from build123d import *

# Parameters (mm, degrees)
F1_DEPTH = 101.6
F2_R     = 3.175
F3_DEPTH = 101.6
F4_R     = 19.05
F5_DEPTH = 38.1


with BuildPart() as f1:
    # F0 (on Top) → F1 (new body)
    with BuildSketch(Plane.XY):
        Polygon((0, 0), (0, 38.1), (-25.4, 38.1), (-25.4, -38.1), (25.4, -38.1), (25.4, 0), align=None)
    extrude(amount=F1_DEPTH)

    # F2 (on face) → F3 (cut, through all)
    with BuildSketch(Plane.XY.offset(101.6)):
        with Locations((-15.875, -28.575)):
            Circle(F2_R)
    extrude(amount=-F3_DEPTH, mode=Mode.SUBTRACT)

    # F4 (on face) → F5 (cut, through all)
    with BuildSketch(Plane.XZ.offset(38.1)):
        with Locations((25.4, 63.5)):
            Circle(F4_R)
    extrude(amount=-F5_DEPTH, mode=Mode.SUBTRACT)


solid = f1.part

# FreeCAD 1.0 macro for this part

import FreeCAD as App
import Part
import Sketcher
Q = App.Units.Quantity


def add_polygon(sketch, points):
    """Adds a closed chain of lines whose ends are joined by coincident constraints."""
    first, n = sketch.GeometryCount, len(points)
    for a, b in zip(points, points[1:] + points[:1]):
        sketch.addGeometry(Part.LineSegment(App.Vector(*a, 0), App.Vector(*b, 0)), False)
    for i in range(n):
        sketch.addConstraint(Sketcher.Constraint("Coincident", first + i, 2, first + (i + 1) % n, 1))

doc = App.newDocument("Part")
body = doc.addObject("PartDesign::Body", "Body")

sketch1 = doc.addObject("Sketcher::SketchObject", "Sketch")
body.addObject(sketch1)
sketch1.AttachmentSupport = (doc.XY_Plane, [""])
sketch1.MapMode = "FlatFace"
add_polygon(sketch1, [(0, 0), (0, 38), (-25, 38), (-25, -38), (25, -38), (25, 0)])
sketch1.addConstraint([
    Sketcher.Constraint("Vertical", 0),
    Sketcher.Constraint("Horizontal", 1),
    Sketcher.Constraint("Vertical", 2),
    Sketcher.Constraint("Horizontal", 3),
    Sketcher.Constraint("Vertical", 4),
    Sketcher.Constraint("Horizontal", 5),
    Sketcher.Constraint("Coincident", 5, 2, -1, 1),
    Sketcher.Constraint("Symmetric", 1, 2, 3, 2, -1, 1),
    Sketcher.Constraint("DistanceX", 1, 2, 1, 1, Q("1 in")),
    Sketcher.Constraint("DistanceY", 2, 2, 2, 1, Q("3 in")),
])
pad1 = doc.addObject("PartDesign::Pad", "Pad")
body.addObject(pad1)
pad1.Profile = sketch1
pad1.Length = Q("4 in")

sketch2 = doc.addObject("Sketcher::SketchObject", "Sketch001")
body.addObject(sketch2)
sketch2.AttachmentSupport = (doc.XY_Plane, [""])
sketch2.MapMode = "FlatFace"
sketch2.AttachmentOffset = App.Placement(App.Vector(0, 0, 4 * 25.4), App.Rotation())
sketch2.addGeometry(Part.Circle(App.Vector(-15.9, -28.6, 0), App.Vector(0, 0, 1), 3.2), False)
sketch2.addConstraint([
    Sketcher.Constraint("Diameter", 0, Q("0.25 in")),
    Sketcher.Constraint("DistanceX", 0, 3, -1, 1, Q("0.625 in")),
    Sketcher.Constraint("DistanceY", 0, 3, -1, 1, Q("1.125 in")),
])
pocket1 = doc.addObject("PartDesign::Pocket", "Pocket")
body.addObject(pocket1)
pocket1.Profile = sketch2
pocket1.Type = "ThroughAll"

sketch3 = doc.addObject("Sketcher::SketchObject", "Sketch002")
body.addObject(sketch3)
sketch3.AttachmentSupport = (doc.XZ_Plane, [""])
sketch3.MapMode = "FlatFace"
sketch3.AttachmentOffset = App.Placement(App.Vector(0, 0, 1.5 * 25.4), App.Rotation())
sketch3.addGeometry(Part.Circle(App.Vector(25, 64, 0), App.Vector(0, 0, 1), 19), False)
sketch3.addConstraint([
    Sketcher.Constraint("Diameter", 0, Q("1.5 in")),
    Sketcher.Constraint("DistanceX", -1, 1, 0, 3, Q("1 in")),
    Sketcher.Constraint("DistanceY", -1, 1, 0, 3, Q("2.5 in")),
])
pocket2 = doc.addObject("PartDesign::Pocket", "Pocket001")
body.addObject(pocket2)
pocket2.Profile = sketch3
pocket2.Type = "ThroughAll"

doc.recompute()
